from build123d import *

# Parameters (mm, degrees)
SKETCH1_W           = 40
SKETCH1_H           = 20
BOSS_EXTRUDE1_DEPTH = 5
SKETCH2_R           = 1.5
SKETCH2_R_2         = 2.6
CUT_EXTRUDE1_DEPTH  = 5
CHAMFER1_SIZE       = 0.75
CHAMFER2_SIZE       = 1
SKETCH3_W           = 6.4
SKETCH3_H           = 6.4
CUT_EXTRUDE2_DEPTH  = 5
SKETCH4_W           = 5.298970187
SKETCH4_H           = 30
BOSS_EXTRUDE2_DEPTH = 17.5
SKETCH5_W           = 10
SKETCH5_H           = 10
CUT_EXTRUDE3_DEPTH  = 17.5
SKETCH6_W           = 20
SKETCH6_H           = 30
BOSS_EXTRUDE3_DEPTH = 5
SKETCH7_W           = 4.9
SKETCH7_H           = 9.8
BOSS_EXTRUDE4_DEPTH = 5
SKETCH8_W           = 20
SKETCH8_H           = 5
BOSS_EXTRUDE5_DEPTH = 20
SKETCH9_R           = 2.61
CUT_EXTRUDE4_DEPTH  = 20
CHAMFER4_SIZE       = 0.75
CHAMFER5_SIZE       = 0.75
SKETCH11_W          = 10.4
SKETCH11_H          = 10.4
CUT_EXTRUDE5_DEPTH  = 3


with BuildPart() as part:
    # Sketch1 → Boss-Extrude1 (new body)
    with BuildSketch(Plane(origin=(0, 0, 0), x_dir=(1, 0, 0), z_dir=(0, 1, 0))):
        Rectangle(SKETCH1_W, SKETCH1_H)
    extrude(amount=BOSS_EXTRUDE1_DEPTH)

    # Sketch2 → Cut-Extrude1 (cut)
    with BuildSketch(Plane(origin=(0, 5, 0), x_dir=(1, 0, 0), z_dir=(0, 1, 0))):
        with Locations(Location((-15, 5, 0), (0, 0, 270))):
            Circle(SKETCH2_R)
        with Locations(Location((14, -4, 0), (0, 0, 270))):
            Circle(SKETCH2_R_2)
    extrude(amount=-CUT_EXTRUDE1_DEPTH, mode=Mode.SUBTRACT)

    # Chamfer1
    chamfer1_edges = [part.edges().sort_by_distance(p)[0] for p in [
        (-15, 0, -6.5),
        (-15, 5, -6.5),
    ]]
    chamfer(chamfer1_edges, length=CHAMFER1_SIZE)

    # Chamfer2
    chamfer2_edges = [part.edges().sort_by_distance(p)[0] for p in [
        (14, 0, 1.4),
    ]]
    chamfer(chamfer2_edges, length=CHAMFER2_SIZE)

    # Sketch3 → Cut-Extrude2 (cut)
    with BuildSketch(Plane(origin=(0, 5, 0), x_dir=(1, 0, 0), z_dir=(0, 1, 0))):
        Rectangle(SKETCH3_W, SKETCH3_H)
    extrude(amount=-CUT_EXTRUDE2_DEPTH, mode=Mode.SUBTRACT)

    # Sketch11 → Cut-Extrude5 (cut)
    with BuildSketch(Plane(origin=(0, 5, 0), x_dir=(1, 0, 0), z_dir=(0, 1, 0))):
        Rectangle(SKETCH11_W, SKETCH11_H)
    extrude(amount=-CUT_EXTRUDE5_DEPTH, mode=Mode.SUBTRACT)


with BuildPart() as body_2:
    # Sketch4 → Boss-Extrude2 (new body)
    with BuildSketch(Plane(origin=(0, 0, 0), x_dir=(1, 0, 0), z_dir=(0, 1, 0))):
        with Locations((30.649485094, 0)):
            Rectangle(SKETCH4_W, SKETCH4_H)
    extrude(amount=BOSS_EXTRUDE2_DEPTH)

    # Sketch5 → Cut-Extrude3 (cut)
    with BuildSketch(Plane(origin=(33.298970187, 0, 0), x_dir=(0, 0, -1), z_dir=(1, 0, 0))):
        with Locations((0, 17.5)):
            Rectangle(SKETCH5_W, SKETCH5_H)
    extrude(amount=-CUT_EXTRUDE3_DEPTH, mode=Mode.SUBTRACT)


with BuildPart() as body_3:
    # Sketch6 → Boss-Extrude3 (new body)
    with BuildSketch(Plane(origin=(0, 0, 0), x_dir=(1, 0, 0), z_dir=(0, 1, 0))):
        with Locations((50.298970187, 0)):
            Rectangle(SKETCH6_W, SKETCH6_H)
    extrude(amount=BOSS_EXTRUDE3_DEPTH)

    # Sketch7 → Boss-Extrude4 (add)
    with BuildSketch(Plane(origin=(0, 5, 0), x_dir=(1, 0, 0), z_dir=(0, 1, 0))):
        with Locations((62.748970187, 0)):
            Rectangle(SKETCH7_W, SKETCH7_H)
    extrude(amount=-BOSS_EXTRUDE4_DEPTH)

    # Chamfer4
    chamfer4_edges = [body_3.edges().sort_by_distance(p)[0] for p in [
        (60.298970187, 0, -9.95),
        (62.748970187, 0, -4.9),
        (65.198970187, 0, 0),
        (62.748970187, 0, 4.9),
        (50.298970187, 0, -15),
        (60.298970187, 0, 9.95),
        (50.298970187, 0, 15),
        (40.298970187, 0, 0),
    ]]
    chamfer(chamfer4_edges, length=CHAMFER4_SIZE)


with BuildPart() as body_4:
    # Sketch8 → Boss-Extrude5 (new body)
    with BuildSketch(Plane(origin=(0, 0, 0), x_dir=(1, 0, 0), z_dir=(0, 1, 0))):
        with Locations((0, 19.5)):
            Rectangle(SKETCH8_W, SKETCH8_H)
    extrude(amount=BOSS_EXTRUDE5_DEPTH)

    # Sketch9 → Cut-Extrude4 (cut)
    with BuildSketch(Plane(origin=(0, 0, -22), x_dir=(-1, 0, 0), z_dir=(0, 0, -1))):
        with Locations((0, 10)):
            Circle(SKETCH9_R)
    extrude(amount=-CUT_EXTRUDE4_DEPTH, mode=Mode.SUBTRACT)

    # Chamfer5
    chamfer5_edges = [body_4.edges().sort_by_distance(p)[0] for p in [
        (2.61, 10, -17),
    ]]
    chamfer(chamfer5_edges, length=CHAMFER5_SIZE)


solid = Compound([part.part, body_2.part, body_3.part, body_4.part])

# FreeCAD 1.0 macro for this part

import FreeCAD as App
import Part
import Sketcher
from FreeCAD import Vector


def edges_at(feature, points):
    """Names of the edges that pass closest to the given points."""
    edges = feature.Shape.Edges
    near = lambda p: min(range(len(edges)), key=lambda i: edges[i].distToShape(Part.Vertex(*p))[0])
    return sorted({f"Edge{near(p) + 1}" for p in points})

doc = App.newDocument("Part")
params = doc.addObject("Spreadsheet::Sheet", "Params")
for row, (alias, value) in enumerate([
    ("sketch1_width", "40 mm"),
    ("sketch1_height", "20 mm"),
    ("pad1_length", "5 mm"),
    ("sketch2_diameter", "3 mm"),
    ("sketch2_diameter2", "5.2 mm"),
    ("pocket1_length", "5 mm"),
    ("chamfer_size", "0.75 mm"),
    ("chamfer2_size", "1 mm"),
    ("sketch3_width", "6.4 mm"),
    ("pocket2_length", "5 mm"),
    ("sketch4_width", "10.4 mm"),
    ("pocket3_length", "3 mm"),
    ("sketch5_height", "30 mm"),
    ("pad2_length", "17.5 mm"),
    ("sketch6_width", "10 mm"),
    ("pocket4_length", "17.5 mm"),
    ("sketch7_width", "20 mm"),
    ("sketch7_height", "30 mm"),
    ("pad3_length", "5 mm"),
    ("sketch8_width", "4.9 mm"),
    ("sketch8_height", "9.8 mm"),
    ("pad4_length", "5 mm"),
    ("chamfer3_size", "0.75 mm"),
    ("sketch9_width", "20 mm"),
    ("sketch9_height", "5 mm"),
    ("pad5_length", "20 mm"),
    ("sketch10_diameter", "5.22 mm"),
    ("pocket5_length", "20 mm"),
    ("chamfer4_size", "0.75 mm"),
], start=1):
    params.set(f"A{row}", alias)
    params.set(f"B{row}", "=" + value)
    params.setAlias(f"B{row}", alias)

body = doc.addObject("PartDesign::Body", "Body")

sketch1 = body.newObject("Sketcher::SketchObject", "Sketch")
sketch1.AttachmentSupport = (doc.getObject("XZ_Plane"), [""])
sketch1.MapMode = "FlatFace"
sketch1.addGeometry([
    Part.LineSegment(Vector(-20, -10, 0), Vector(-20, 10, 0)),
    Part.LineSegment(Vector(-20, 10, 0), Vector(20, 10, 0)),
    Part.LineSegment(Vector(20, 10, 0), Vector(20, -10, 0)),
    Part.LineSegment(Vector(20, -10, 0), Vector(-20, -10, 0)),
], False)
sketch1.addConstraint([
    Sketcher.Constraint("Coincident", 0, 2, 1, 1),
    Sketcher.Constraint("Coincident", 1, 2, 2, 1),
    Sketcher.Constraint("Coincident", 2, 2, 3, 1),
    Sketcher.Constraint("Coincident", 3, 2, 0, 1),
    Sketcher.Constraint("Vertical", 0),
    Sketcher.Constraint("Horizontal", 1),
    Sketcher.Constraint("Vertical", 2),
    Sketcher.Constraint("Horizontal", 3),
    Sketcher.Constraint("Symmetric", 0, 2, 2, 2, -1, 1),
    Sketcher.Constraint("DistanceX", 1, 1, 1, 2, 40.0),
    Sketcher.Constraint("DistanceY", 0, 1, 0, 2, 20.0),
])
sketch1.setExpression("Constraints[9]", "Params.sketch1_width")
sketch1.setExpression("Constraints[10]", "Params.sketch1_height")
pad1 = body.newObject("PartDesign::Pad", "Pad")
pad1.Profile = sketch1
pad1.setExpression("Length", "Params.pad1_length")
pad1.Reversed = True

sketch2 = body.newObject("Sketcher::SketchObject", "Sketch001")
sketch2.AttachmentSupport = (doc.getObject("XZ_Plane"), [""])
sketch2.MapMode = "FlatFace"
sketch2.AttachmentOffset = App.Placement(Vector(0, 0, -5), App.Rotation())
sketch2.addGeometry([
    Part.Circle(Vector(-15, -5, 0), Vector(0, 0, 1), 1.5),
    Part.Circle(Vector(14, 4, 0), Vector(0, 0, 1), 2.6),
], False)
sketch2.addConstraint([
    Sketcher.Constraint("Diameter", 0, 3.0),
    Sketcher.Constraint("Diameter", 1, 5.2),
    Sketcher.Constraint("DistanceX", 0, 3, -1, 1, 15.0),
    Sketcher.Constraint("DistanceY", 0, 3, -1, 1, 5.0),
    Sketcher.Constraint("DistanceX", -1, 1, 1, 3, 14.0),
    Sketcher.Constraint("DistanceY", -1, 1, 1, 3, 4.0),
])
sketch2.setExpression("Constraints[0]", "Params.sketch2_diameter")
sketch2.setExpression("Constraints[1]", "Params.sketch2_diameter2")
pocket1 = body.newObject("PartDesign::Pocket", "Pocket")
pocket1.Profile = sketch2
pocket1.setExpression("Length", "Params.pocket1_length")
pocket1.Reversed = True
doc.recompute()

chamfer = body.newObject("PartDesign::Chamfer", "Chamfer")
chamfer.Base = (pocket1, edges_at(pocket1, [(-15, 0, -6.5), (-15, 5, -6.5)]))
chamfer.setExpression("Size", "Params.chamfer_size")
doc.recompute()

chamfer2 = body.newObject("PartDesign::Chamfer", "Chamfer001")
chamfer2.Base = (chamfer, edges_at(chamfer, [(14, 0, 1.4)]))
chamfer2.setExpression("Size", "Params.chamfer2_size")

sketch3 = body.newObject("Sketcher::SketchObject", "Sketch002")
sketch3.AttachmentSupport = (doc.getObject("XZ_Plane"), [""])
sketch3.MapMode = "FlatFace"
sketch3.AttachmentOffset = App.Placement(Vector(0, 0, -5), App.Rotation())
sketch3.addGeometry([
    Part.LineSegment(Vector(-3, -3, 0), Vector(-3, 3, 0)),
    Part.LineSegment(Vector(-3, 3, 0), Vector(3, 3, 0)),
    Part.LineSegment(Vector(3, 3, 0), Vector(3, -3, 0)),
    Part.LineSegment(Vector(3, -3, 0), Vector(-3, -3, 0)),
], False)
sketch3.addConstraint([
    Sketcher.Constraint("Coincident", 0, 2, 1, 1),
    Sketcher.Constraint("Coincident", 1, 2, 2, 1),
    Sketcher.Constraint("Coincident", 2, 2, 3, 1),
    Sketcher.Constraint("Coincident", 3, 2, 0, 1),
    Sketcher.Constraint("Vertical", 0),
    Sketcher.Constraint("Horizontal", 1),
    Sketcher.Constraint("Vertical", 2),
    Sketcher.Constraint("Horizontal", 3),
    Sketcher.Constraint("Symmetric", 0, 2, 2, 2, -1, 1),
    Sketcher.Constraint("Equal", 3, 0),
    Sketcher.Constraint("DistanceX", 1, 1, 1, 2, 6.4),
])
sketch3.setExpression("Constraints[10]", "Params.sketch3_width")
pocket2 = body.newObject("PartDesign::Pocket", "Pocket001")
pocket2.Profile = sketch3
pocket2.setExpression("Length", "Params.pocket2_length")
pocket2.Reversed = True

sketch4 = body.newObject("Sketcher::SketchObject", "Sketch003")
sketch4.AttachmentSupport = (doc.getObject("XZ_Plane"), [""])
sketch4.MapMode = "FlatFace"
sketch4.AttachmentOffset = App.Placement(Vector(0, 0, -5), App.Rotation())
sketch4.addGeometry([
    Part.LineSegment(Vector(-5, -5, 0), Vector(-5, 5, 0)),
    Part.LineSegment(Vector(-5, 5, 0), Vector(5, 5, 0)),
    Part.LineSegment(Vector(5, 5, 0), Vector(5, -5, 0)),
    Part.LineSegment(Vector(5, -5, 0), Vector(-5, -5, 0)),
], False)
sketch4.addConstraint([
    Sketcher.Constraint("Coincident", 0, 2, 1, 1),
    Sketcher.Constraint("Coincident", 1, 2, 2, 1),
    Sketcher.Constraint("Coincident", 2, 2, 3, 1),
    Sketcher.Constraint("Coincident", 3, 2, 0, 1),
    Sketcher.Constraint("Vertical", 0),
    Sketcher.Constraint("Horizontal", 1),
    Sketcher.Constraint("Vertical", 2),
    Sketcher.Constraint("Horizontal", 3),
    Sketcher.Constraint("Symmetric", 0, 2, 2, 2, -1, 1),
    Sketcher.Constraint("Equal", 3, 0),
    Sketcher.Constraint("DistanceX", 1, 1, 1, 2, 10.4),
])
sketch4.setExpression("Constraints[10]", "Params.sketch4_width")
pocket3 = body.newObject("PartDesign::Pocket", "Pocket002")
pocket3.Profile = sketch4
pocket3.setExpression("Length", "Params.pocket3_length")
pocket3.Reversed = True
body2 = doc.addObject("PartDesign::Body", "Body001")

sketch5 = body2.newObject("Sketcher::SketchObject", "Sketch004")
sketch5.AttachmentSupport = (doc.getObject("XZ_Plane001"), [""])
sketch5.MapMode = "FlatFace"
sketch5.addGeometry([
    Part.LineSegment(Vector(28, -15, 0), Vector(28, 15, 0)),
    Part.LineSegment(Vector(28, 15, 0), Vector(33, 15, 0)),
    Part.LineSegment(Vector(33, 15, 0), Vector(33, -15, 0)),
    Part.LineSegment(Vector(33, -15, 0), Vector(28, -15, 0)),
], False)
sketch5.addConstraint([
    Sketcher.Constraint("Coincident", 0, 2, 1, 1),
    Sketcher.Constraint("Coincident", 1, 2, 2, 1),
    Sketcher.Constraint("Coincident", 2, 2, 3, 1),
    Sketcher.Constraint("Coincident", 3, 2, 0, 1),
    Sketcher.Constraint("Vertical", 0),
    Sketcher.Constraint("Horizontal", 1),
    Sketcher.Constraint("Vertical", 2),
    Sketcher.Constraint("Horizontal", 3),
    Sketcher.Constraint("DistanceY", 0, 1, 0, 2, 30.0),
    Sketcher.Constraint("DistanceX", -1, 1, 0, 2, 28.0),
    Sketcher.Constraint("DistanceY", -1, 1, 0, 2, 15.0),
    Sketcher.Constraint("DistanceX", 1, 1, 1, 2, 5.29897),
])
sketch5.setExpression("Constraints[8]", "Params.sketch5_height")
pad2 = body2.newObject("PartDesign::Pad", "Pad001")
pad2.Profile = sketch5
pad2.setExpression("Length", "Params.pad2_length")
pad2.Reversed = True

sketch6 = body2.newObject("Sketcher::SketchObject", "Sketch005")
sketch6.AttachmentSupport = (doc.getObject("YZ_Plane001"), [""])
sketch6.MapMode = "FlatFace"
sketch6.AttachmentOffset = App.Placement(Vector(0, 0, 33.29897), App.Rotation())
sketch6.addGeometry([
    Part.LineSegment(Vector(22, 5, 0), Vector(12, 5, 0)),
    Part.LineSegment(Vector(12, 5, 0), Vector(12, -5, 0)),
    Part.LineSegment(Vector(12, -5, 0), Vector(22, -5, 0)),
    Part.LineSegment(Vector(22, -5, 0), Vector(22, 5, 0)),
], False)
sketch6.addConstraint([
    Sketcher.Constraint("Coincident", 0, 2, 1, 1),
    Sketcher.Constraint("Coincident", 1, 2, 2, 1),
    Sketcher.Constraint("Coincident", 2, 2, 3, 1),
    Sketcher.Constraint("Coincident", 3, 2, 0, 1),
    Sketcher.Constraint("Horizontal", 0),
    Sketcher.Constraint("Vertical", 1),
    Sketcher.Constraint("Horizontal", 2),
    Sketcher.Constraint("Vertical", 3),
    Sketcher.Constraint("Equal", 2, 1),
    Sketcher.Constraint("DistanceX", 0, 2, 0, 1, 10.0),
    Sketcher.Constraint("DistanceY", -1, 1, 0, 2, 5.0),
    Sketcher.Constraint("DistanceX", -1, 1, 0, 2, 12.5),
])
sketch6.setExpression("Constraints[9]", "Params.sketch6_width")
pocket4 = body2.newObject("PartDesign::Pocket", "Pocket003")
pocket4.Profile = sketch6
pocket4.setExpression("Length", "Params.pocket4_length")
body3 = doc.addObject("PartDesign::Body", "Body002")

sketch7 = body3.newObject("Sketcher::SketchObject", "Sketch006")
sketch7.AttachmentSupport = (doc.getObject("XZ_Plane002"), [""])
sketch7.MapMode = "FlatFace"
sketch7.addGeometry([
    Part.LineSegment(Vector(40, -15, 0), Vector(40, 15, 0)),
    Part.LineSegment(Vector(40, 15, 0), Vector(60, 15, 0)),
    Part.LineSegment(Vector(60, 15, 0), Vector(60, -15, 0)),
    Part.LineSegment(Vector(60, -15, 0), Vector(40, -15, 0)),
], False)
sketch7.addConstraint([
    Sketcher.Constraint("Coincident", 0, 2, 1, 1),
    Sketcher.Constraint("Coincident", 1, 2, 2, 1),
    Sketcher.Constraint("Coincident", 2, 2, 3, 1),
    Sketcher.Constraint("Coincident", 3, 2, 0, 1),
    Sketcher.Constraint("Vertical", 0),
    Sketcher.Constraint("Horizontal", 1),
    Sketcher.Constraint("Vertical", 2),
    Sketcher.Constraint("Horizontal", 3),
    Sketcher.Constraint("DistanceX", 1, 1, 1, 2, 20.0),
    Sketcher.Constraint("DistanceY", 0, 1, 0, 2, 30.0),
    Sketcher.Constraint("DistanceY", -1, 1, 0, 2, 15.0),
    Sketcher.Constraint("DistanceX", -1, 1, 0, 2, 40.29897),
])
sketch7.setExpression("Constraints[8]", "Params.sketch7_width")
sketch7.setExpression("Constraints[9]", "Params.sketch7_height")
pad3 = body3.newObject("PartDesign::Pad", "Pad002")
pad3.Profile = sketch7
pad3.setExpression("Length", "Params.pad3_length")
pad3.Reversed = True

sketch8 = body3.newObject("Sketcher::SketchObject", "Sketch007")
sketch8.AttachmentSupport = (doc.getObject("XZ_Plane002"), [""])
sketch8.MapMode = "FlatFace"
sketch8.AttachmentOffset = App.Placement(Vector(0, 0, -5), App.Rotation())
sketch8.addGeometry([
    Part.LineSegment(Vector(60.3, -4.9, 0), Vector(60.3, 4.9, 0)),
    Part.LineSegment(Vector(60.3, 4.9, 0), Vector(65.2, 4.9, 0)),
    Part.LineSegment(Vector(65.2, 4.9, 0), Vector(65.2, -4.9, 0)),
    Part.LineSegment(Vector(65.2, -4.9, 0), Vector(60.3, -4.9, 0)),
], False)
sketch8.addConstraint([
    Sketcher.Constraint("Coincident", 0, 2, 1, 1),
    Sketcher.Constraint("Coincident", 1, 2, 2, 1),
    Sketcher.Constraint("Coincident", 2, 2, 3, 1),
    Sketcher.Constraint("Coincident", 3, 2, 0, 1),
    Sketcher.Constraint("Vertical", 0),
    Sketcher.Constraint("Horizontal", 1),
    Sketcher.Constraint("Vertical", 2),
    Sketcher.Constraint("Horizontal", 3),
    Sketcher.Constraint("DistanceX", 1, 1, 1, 2, 4.9),
    Sketcher.Constraint("DistanceY", 0, 1, 0, 2, 9.8),
    Sketcher.Constraint("DistanceY", -1, 1, 0, 2, 4.9),
    Sketcher.Constraint("DistanceX", -1, 1, 0, 2, 60.29897),
])
sketch8.setExpression("Constraints[8]", "Params.sketch8_width")
sketch8.setExpression("Constraints[9]", "Params.sketch8_height")
pad4 = body3.newObject("PartDesign::Pad", "Pad003")
pad4.Profile = sketch8
pad4.setExpression("Length", "Params.pad4_length")
doc.recompute()

chamfer3 = body3.newObject("PartDesign::Chamfer", "Chamfer002")
chamfer3.Base = (pad4, edges_at(pad4, [
    (60.299, 0, -9.95),
    (62.749, 0, -4.9),
    (65.199, 0, 0),
    (62.749, 0, 4.9),
    (50.299, 0, -15),
    (60.299, 0, 9.95),
    (50.299, 0, 15),
    (40.299, 0, 0),
]))
chamfer3.setExpression("Size", "Params.chamfer3_size")
body4 = doc.addObject("PartDesign::Body", "Body003")

sketch9 = body4.newObject("Sketcher::SketchObject", "Sketch008")
sketch9.AttachmentSupport = (doc.getObject("XZ_Plane003"), [""])
sketch9.MapMode = "FlatFace"
sketch9.addGeometry([
    Part.LineSegment(Vector(-10, -22, 0), Vector(-10, -17, 0)),
    Part.LineSegment(Vector(-10, -17, 0), Vector(10, -17, 0)),
    Part.LineSegment(Vector(10, -17, 0), Vector(10, -22, 0)),
    Part.LineSegment(Vector(10, -22, 0), Vector(-10, -22, 0)),
], False)
sketch9.addConstraint([
    Sketcher.Constraint("Coincident", 0, 2, 1, 1),
    Sketcher.Constraint("Coincident", 1, 2, 2, 1),
    Sketcher.Constraint("Coincident", 2, 2, 3, 1),
    Sketcher.Constraint("Coincident", 3, 2, 0, 1),
    Sketcher.Constraint("Vertical", 0),
    Sketcher.Constraint("Horizontal", 1),
    Sketcher.Constraint("Vertical", 2),
    Sketcher.Constraint("Horizontal", 3),
    Sketcher.Constraint("DistanceX", 1, 1, 1, 2, 20.0),
    Sketcher.Constraint("DistanceY", 0, 1, 0, 2, 5.0),
    Sketcher.Constraint("DistanceX", 0, 2, -1, 1, 10.0),
    Sketcher.Constraint("DistanceY", 0, 2, -1, 1, 17.0),
])
sketch9.setExpression("Constraints[8]", "Params.sketch9_width")
sketch9.setExpression("Constraints[9]", "Params.sketch9_height")
pad5 = body4.newObject("PartDesign::Pad", "Pad004")
pad5.Profile = sketch9
pad5.setExpression("Length", "Params.pad5_length")
pad5.Reversed = True

sketch10 = body4.newObject("Sketcher::SketchObject", "Sketch009")
sketch10.AttachmentSupport = (doc.getObject("XY_Plane003"), [""])
sketch10.MapMode = "FlatFace"
sketch10.AttachmentOffset = App.Placement(Vector(0, 0, -22), App.Rotation())
sketch10.addGeometry(Part.Circle(Vector(0, 10, 0), Vector(0, 0, 1), 2.6), False)
sketch10.addConstraint([
    Sketcher.Constraint("PointOnObject", 0, 3, -2),
    Sketcher.Constraint("Diameter", 0, 5.22),
    Sketcher.Constraint("DistanceY", -1, 1, 0, 3, 10.0),
])
sketch10.setExpression("Constraints[1]", "Params.sketch10_diameter")
pocket5 = body4.newObject("PartDesign::Pocket", "Pocket004")
pocket5.Profile = sketch10
pocket5.setExpression("Length", "Params.pocket5_length")
pocket5.Reversed = True
doc.recompute()

chamfer4 = body4.newObject("PartDesign::Chamfer", "Chamfer003")
chamfer4.Base = (pocket5, edges_at(pocket5, [(2.61, 10, -17)]))
chamfer4.setExpression("Size", "Params.chamfer4_size")

doc.recompute()
